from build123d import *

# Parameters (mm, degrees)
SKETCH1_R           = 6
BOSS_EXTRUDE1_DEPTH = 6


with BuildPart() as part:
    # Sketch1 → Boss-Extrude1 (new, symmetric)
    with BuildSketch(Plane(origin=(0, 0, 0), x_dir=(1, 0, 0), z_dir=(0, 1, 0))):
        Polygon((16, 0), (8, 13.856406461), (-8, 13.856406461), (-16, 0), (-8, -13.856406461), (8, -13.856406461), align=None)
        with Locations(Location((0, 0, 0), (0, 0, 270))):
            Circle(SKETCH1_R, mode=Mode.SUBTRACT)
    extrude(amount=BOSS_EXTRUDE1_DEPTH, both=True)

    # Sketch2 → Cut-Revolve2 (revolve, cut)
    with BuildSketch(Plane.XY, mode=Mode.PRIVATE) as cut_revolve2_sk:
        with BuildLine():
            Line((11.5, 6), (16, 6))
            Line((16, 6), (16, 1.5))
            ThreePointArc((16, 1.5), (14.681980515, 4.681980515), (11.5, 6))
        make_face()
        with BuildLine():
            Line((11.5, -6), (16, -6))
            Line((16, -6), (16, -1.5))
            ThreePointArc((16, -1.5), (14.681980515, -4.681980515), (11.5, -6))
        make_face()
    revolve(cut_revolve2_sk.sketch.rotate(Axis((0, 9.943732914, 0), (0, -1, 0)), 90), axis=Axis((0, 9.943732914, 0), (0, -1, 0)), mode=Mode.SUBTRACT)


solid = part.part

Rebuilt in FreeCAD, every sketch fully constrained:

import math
import FreeCAD as App
import Part
import Sketcher
from FreeCAD import Vector
Q = App.Units.Quantity

doc = App.newDocument("Part")
body = doc.addObject("PartDesign::Body", "Body")

# Sketch on XZ plane
sketch1 = body.newObject("Sketcher::SketchObject", "Sketch")
sketch1.AttachmentSupport = (doc.getObject("XZ_Plane"), [""])
sketch1.MapMode = "FlatFace"
sketch1.addGeometry([
    Part.LineSegment(Vector(16, 0, 0), Vector(8, -14, 0)),  # 0
    Part.LineSegment(Vector(8, -14, 0), Vector(-8, -14, 0)),  # 1
    Part.LineSegment(Vector(-8, -14, 0), Vector(-16, 0, 0)),  # 2
    Part.LineSegment(Vector(-16, 0, 0), Vector(-8, 14, 0)),  # 3
    Part.LineSegment(Vector(-8, 14, 0), Vector(8, 14, 0)),  # 4
    Part.LineSegment(Vector(8, 14, 0), Vector(16, 0, 0)),  # 5
    Part.Circle(Vector(0, 0, 0), Vector(0, 0, 1), 6),  # 6
], False)
sketch1.addConstraint([
    Sketcher.Constraint("Coincident", 0, 2, 1, 1),
    Sketcher.Constraint("Coincident", 1, 2, 2, 1),
    Sketcher.Constraint("Coincident", 2, 2, 3, 1),
    Sketcher.Constraint("Coincident", 3, 2, 4, 1),
    Sketcher.Constraint("Coincident", 4, 2, 5, 1),
    Sketcher.Constraint("Coincident", 5, 2, 0, 1),
    Sketcher.Constraint("Horizontal", 1),
    Sketcher.Constraint("Horizontal", 4),
    Sketcher.Constraint("Coincident", 6, 3, -1, 1),
    Sketcher.Constraint("Symmetric", 0, 2, 3, 2, -1, 1),
    Sketcher.Constraint("Symmetric", 2, 2, 5, 2, -1, 1),
    Sketcher.Constraint("PointOnObject", 2, 2, -1),
    Sketcher.Constraint("Parallel", 2, 5),
    Sketcher.Constraint("Vertical", 1, 2, 3, 2),
    Sketcher.Constraint("Diameter", 6, 12.0),
    Sketcher.Constraint("DistanceX", 1, 2, 1, 1, 16.0),
    Sketcher.Constraint("Angle", 0, Q("-120 deg")),
    Sketcher.Constraint("Distance", 0, 16.0),
])
pad1 = body.newObject("PartDesign::Pad", "Pad")
pad1.Profile = sketch1
pad1.Length = 12
pad1.Midplane = True

# Sketch on XY plane
sketch2 = body.newObject("Sketcher::SketchObject", "Sketch001")
sketch2.AttachmentSupport = (doc.getObject("XY_Plane"), [""])
sketch2.MapMode = "FlatFace"
sketch2.addGeometry([
    Part.LineSegment(Vector(16, 6, 0), Vector(11.5, 6, 0)),  # 0
    Part.ArcOfCircle(Part.Circle(Vector(11.5, 1.5, 0), Vector(0, 0, 1), 4.5), math.radians(0), math.radians(90)),  # 1
    Part.LineSegment(Vector(16, 1.5, 0), Vector(16, 6, 0)),  # 2
    Part.LineSegment(Vector(11.5, -6, 0), Vector(16, -6, 0)),  # 3
    Part.LineSegment(Vector(16, -6, 0), Vector(16, -1.5, 0)),  # 4
    Part.ArcOfCircle(Part.Circle(Vector(11.5, -1.5, 0), Vector(0, 0, 1), 4.5), math.radians(-90), math.radians(0)),  # 5
], False)
sketch2.addConstraint([
    Sketcher.Constraint("Tangent", 0, 2, 1, 2),
    Sketcher.Constraint("Tangent", 1, 1, 2, 1),
    Sketcher.Constraint("Coincident", 2, 2, 0, 1),
    Sketcher.Constraint("Coincident", 3, 2, 4, 1),
    Sketcher.Constraint("Tangent", 4, 2, 5, 2),
    Sketcher.Constraint("Tangent", 5, 1, 3, 1),
    Sketcher.Constraint("Horizontal", 0),
    Sketcher.Constraint("Vertical", 2),
    Sketcher.Constraint("Horizontal", 3),
    Sketcher.Constraint("Vertical", 4),
    Sketcher.Constraint("Equal", 1, 5),
    Sketcher.Constraint("Symmetric", 1, 3, 5, 3, -1),
    Sketcher.Constraint("Radius", 1, 4.5),
    Sketcher.Constraint("DistanceY", -1, 1, 0, 2, 6.0),
    Sketcher.Constraint("DistanceX", -1, 1, 1, 1, 16.0),
])
groove = body.newObject("PartDesign::Groove", "Groove")
groove.Profile = sketch2
groove.ReferenceAxis = (sketch2, ["V_Axis"])
groove.Angle = 360

doc.recompute()
